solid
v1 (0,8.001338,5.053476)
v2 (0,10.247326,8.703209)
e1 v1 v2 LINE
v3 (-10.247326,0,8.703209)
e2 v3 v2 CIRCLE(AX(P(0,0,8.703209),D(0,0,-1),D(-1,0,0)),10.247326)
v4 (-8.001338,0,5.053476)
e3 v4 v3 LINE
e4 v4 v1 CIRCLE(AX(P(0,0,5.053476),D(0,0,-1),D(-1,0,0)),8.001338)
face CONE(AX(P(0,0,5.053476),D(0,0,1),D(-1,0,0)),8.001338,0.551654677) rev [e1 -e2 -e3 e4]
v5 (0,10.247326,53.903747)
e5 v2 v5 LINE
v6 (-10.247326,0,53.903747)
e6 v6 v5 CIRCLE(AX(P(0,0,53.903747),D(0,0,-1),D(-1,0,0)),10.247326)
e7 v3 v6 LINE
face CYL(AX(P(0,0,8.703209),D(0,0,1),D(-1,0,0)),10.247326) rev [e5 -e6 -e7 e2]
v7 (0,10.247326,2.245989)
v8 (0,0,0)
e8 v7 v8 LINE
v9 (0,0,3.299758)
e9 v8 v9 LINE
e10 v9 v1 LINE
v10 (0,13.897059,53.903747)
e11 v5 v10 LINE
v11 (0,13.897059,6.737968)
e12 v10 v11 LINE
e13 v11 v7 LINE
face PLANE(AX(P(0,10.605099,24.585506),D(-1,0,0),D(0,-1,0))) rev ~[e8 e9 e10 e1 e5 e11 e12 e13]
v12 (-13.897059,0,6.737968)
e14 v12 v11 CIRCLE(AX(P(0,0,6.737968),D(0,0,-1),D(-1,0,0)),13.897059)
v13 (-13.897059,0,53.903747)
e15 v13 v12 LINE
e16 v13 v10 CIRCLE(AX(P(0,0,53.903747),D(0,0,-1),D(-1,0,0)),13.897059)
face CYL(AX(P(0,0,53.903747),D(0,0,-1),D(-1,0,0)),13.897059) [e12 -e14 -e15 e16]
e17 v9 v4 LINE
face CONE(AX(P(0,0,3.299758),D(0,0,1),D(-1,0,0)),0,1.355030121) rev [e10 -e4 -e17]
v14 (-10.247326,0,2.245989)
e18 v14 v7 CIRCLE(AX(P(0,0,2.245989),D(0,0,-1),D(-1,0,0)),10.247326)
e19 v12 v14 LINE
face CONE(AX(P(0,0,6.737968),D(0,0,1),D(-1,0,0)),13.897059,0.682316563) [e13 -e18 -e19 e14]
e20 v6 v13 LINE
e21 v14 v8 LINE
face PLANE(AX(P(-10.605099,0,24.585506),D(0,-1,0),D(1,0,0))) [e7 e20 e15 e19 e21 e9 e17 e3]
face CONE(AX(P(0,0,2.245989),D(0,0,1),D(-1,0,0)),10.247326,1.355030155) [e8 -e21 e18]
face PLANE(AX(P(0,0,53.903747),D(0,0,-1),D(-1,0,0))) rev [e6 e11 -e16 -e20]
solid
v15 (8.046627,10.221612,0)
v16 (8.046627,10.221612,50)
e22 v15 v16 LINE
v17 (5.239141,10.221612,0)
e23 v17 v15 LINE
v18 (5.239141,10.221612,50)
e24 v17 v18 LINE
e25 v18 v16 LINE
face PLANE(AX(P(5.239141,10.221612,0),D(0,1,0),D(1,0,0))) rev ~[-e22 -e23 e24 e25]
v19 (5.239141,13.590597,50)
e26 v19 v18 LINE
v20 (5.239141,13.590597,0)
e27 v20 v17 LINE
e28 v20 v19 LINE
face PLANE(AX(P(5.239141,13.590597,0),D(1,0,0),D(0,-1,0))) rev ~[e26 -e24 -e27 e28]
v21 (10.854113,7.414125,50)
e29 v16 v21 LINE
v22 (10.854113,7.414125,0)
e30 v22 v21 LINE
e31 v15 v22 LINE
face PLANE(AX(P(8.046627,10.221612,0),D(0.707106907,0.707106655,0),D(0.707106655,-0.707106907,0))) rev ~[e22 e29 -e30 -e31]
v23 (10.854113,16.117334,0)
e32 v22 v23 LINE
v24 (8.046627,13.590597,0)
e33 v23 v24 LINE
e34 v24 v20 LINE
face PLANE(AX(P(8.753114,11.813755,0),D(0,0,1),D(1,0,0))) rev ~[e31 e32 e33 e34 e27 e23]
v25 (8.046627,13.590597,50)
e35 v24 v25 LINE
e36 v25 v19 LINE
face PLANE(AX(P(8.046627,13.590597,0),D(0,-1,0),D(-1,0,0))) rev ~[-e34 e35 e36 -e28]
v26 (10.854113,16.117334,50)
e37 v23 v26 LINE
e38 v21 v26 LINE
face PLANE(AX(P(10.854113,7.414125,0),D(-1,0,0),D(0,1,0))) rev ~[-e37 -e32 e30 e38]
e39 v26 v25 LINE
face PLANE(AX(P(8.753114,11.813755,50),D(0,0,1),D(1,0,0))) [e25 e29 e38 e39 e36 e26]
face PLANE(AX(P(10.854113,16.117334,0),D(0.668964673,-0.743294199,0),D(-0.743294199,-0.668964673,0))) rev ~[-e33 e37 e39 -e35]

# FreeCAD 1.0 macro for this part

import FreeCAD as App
import Part
import Sketcher
Q = App.Units.Quantity

doc = App.newDocument("Part")
body = doc.addObject("PartDesign::Body", "Body")

# Sketch on XZ plane
sketch1 = doc.addObject("Sketcher::SketchObject", "Sketch")
body.addObject(sketch1)
sketch1.AttachmentSupport = (doc.XZ_Plane, [""])
sketch1.MapMode = "FlatFace"
sketch1.addGeometry([
    Part.LineSegment(App.Vector(-10.2, 2.2, 0), App.Vector(0, 0, 0)),  # 0
    Part.LineSegment(App.Vector(0, 0, 0), App.Vector(0, 3.3, 0)),  # 1
    Part.LineSegment(App.Vector(0, 3.3, 0), App.Vector(-8, 5.1, 0)),  # 2
    Part.LineSegment(App.Vector(-8, 5.1, 0), App.Vector(-10.2, 8.7, 0)),  # 3
    Part.LineSegment(App.Vector(-10.2, 8.7, 0), App.Vector(-10.2, 53.9, 0)),  # 4
    Part.LineSegment(App.Vector(-10.2, 53.9, 0), App.Vector(-13.9, 53.9, 0)),  # 5
    Part.LineSegment(App.Vector(-13.9, 53.9, 0), App.Vector(-13.9, 6.7, 0)),  # 6
    Part.LineSegment(App.Vector(-13.9, 6.7, 0), App.Vector(-10.2, 2.2, 0)),  # 7
], False)
sketch1.addConstraint([
    Sketcher.Constraint("Coincident", 0, 2, 1, 1),
    Sketcher.Constraint("Coincident", 1, 2, 2, 1),
    Sketcher.Constraint("Coincident", 2, 2, 3, 1),
    Sketcher.Constraint("Coincident", 3, 2, 4, 1),
    Sketcher.Constraint("Coincident", 4, 2, 5, 1),
    Sketcher.Constraint("Coincident", 5, 2, 6, 1),
    Sketcher.Constraint("Coincident", 6, 2, 7, 1),
    Sketcher.Constraint("Coincident", 7, 2, 0, 1),
    Sketcher.Constraint("Vertical", 1),
    Sketcher.Constraint("Vertical", 4),
    Sketcher.Constraint("Horizontal", 5),
    Sketcher.Constraint("Vertical", 6),
    Sketcher.Constraint("Coincident", 0, 2, -1, 1),
    Sketcher.Constraint("Parallel", 0, 2),
    Sketcher.Constraint("Vertical", 4, 2, 7, 2),
    Sketcher.Constraint("DistanceY", 1, 1, 1, 2, Q("3.299758 mm")),
    Sketcher.Constraint("DistanceY", 4, 1, 4, 2, Q("45.200538 mm")),
    Sketcher.Constraint("DistanceY", 6, 2, 6, 1, Q("47.165779 mm")),
    Sketcher.Constraint("Distance", 2, Q("8.191272 mm")),
    Sketcher.Constraint("Distance", 3, Q("4.285442 mm")),
    Sketcher.Constraint("DistanceX", 5, 2, 5, 1, Q("3.649733 mm")),
    Sketcher.Constraint("DistanceY", -1, 1, 3, 2, Q("8.703209 mm")),
    Sketcher.Constraint("DistanceX", 5, 2, -1, 1, Q("13.897059 mm")),
])
revolution = doc.addObject("PartDesign::Revolution", "Revolution")
body.addObject(revolution)
revolution.Profile = sketch1
revolution.ReferenceAxis = (sketch1, ["V_Axis"])
revolution.Angle = 90
revolution.Reversed = True
body2 = doc.addObject("PartDesign::Body", "Body001")

# Sketch on XY plane
sketch2 = doc.addObject("Sketcher::SketchObject", "Sketch001")
body2.addObject(sketch2)
sketch2.AttachmentSupport = (doc.getObject("XY_Plane001"), [""])
sketch2.MapMode = "FlatFace"
sketch2.addGeometry([
    Part.LineSegment(App.Vector(8, 13.6, 0), App.Vector(5.2, 13.6, 0)),  # 0
    Part.LineSegment(App.Vector(5.2, 13.6, 0), App.Vector(5.2, 10.2, 0)),  # 1
    Part.LineSegment(App.Vector(5.2, 10.2, 0), App.Vector(8, 10.2, 0)),  # 2
    Part.LineSegment(App.Vector(8, 10.2, 0), App.Vector(10.9, 7.4, 0)),  # 3
    Part.LineSegment(App.Vector(10.9, 7.4, 0), App.Vector(10.9, 16.1, 0)),  # 4
    Part.LineSegment(App.Vector(10.9, 16.1, 0), App.Vector(8, 13.6, 0)),  # 5
], False)
sketch2.addConstraint([
    Sketcher.Constraint("Coincident", 0, 2, 1, 1),
    Sketcher.Constraint("Coincident", 1, 2, 2, 1),
    Sketcher.Constraint("Coincident", 2, 2, 3, 1),
    Sketcher.Constraint("Coincident", 3, 2, 4, 1),
    Sketcher.Constraint("Coincident", 4, 2, 5, 1),
    Sketcher.Constraint("Coincident", 5, 2, 0, 1),
    Sketcher.Constraint("Horizontal", 0),
    Sketcher.Constraint("Vertical", 1),
    Sketcher.Constraint("Horizontal", 2),
    Sketcher.Constraint("Vertical", 4),
    Sketcher.Constraint("Vertical", 2, 2, 5, 2),
    Sketcher.Constraint("Angle", 3, Q("-45.00001 deg")),
    Sketcher.Constraint("DistanceY", 4, 1, 4, 2, Q("8.703209 mm")),
    Sketcher.Constraint("DistanceX", 0, 2, 0, 1, Q("2.807486 mm")),
    Sketcher.Constraint("DistanceY", 1, 2, 1, 1, Q("3.368985 mm")),
    Sketcher.Constraint("DistanceX", -1, 1, 0, 2, Q("5.239141 mm")),
    Sketcher.Constraint("DistanceY", 2, 2, 4, 2, Q("5.895722 mm")),
    Sketcher.Constraint("DistanceY", -1, 1, 0, 2, Q("13.590597 mm")),
])
pad1 = doc.addObject("PartDesign::Pad", "Pad")
body2.addObject(pad1)
pad1.Profile = sketch2
pad1.Length = 50

doc.recompute()
